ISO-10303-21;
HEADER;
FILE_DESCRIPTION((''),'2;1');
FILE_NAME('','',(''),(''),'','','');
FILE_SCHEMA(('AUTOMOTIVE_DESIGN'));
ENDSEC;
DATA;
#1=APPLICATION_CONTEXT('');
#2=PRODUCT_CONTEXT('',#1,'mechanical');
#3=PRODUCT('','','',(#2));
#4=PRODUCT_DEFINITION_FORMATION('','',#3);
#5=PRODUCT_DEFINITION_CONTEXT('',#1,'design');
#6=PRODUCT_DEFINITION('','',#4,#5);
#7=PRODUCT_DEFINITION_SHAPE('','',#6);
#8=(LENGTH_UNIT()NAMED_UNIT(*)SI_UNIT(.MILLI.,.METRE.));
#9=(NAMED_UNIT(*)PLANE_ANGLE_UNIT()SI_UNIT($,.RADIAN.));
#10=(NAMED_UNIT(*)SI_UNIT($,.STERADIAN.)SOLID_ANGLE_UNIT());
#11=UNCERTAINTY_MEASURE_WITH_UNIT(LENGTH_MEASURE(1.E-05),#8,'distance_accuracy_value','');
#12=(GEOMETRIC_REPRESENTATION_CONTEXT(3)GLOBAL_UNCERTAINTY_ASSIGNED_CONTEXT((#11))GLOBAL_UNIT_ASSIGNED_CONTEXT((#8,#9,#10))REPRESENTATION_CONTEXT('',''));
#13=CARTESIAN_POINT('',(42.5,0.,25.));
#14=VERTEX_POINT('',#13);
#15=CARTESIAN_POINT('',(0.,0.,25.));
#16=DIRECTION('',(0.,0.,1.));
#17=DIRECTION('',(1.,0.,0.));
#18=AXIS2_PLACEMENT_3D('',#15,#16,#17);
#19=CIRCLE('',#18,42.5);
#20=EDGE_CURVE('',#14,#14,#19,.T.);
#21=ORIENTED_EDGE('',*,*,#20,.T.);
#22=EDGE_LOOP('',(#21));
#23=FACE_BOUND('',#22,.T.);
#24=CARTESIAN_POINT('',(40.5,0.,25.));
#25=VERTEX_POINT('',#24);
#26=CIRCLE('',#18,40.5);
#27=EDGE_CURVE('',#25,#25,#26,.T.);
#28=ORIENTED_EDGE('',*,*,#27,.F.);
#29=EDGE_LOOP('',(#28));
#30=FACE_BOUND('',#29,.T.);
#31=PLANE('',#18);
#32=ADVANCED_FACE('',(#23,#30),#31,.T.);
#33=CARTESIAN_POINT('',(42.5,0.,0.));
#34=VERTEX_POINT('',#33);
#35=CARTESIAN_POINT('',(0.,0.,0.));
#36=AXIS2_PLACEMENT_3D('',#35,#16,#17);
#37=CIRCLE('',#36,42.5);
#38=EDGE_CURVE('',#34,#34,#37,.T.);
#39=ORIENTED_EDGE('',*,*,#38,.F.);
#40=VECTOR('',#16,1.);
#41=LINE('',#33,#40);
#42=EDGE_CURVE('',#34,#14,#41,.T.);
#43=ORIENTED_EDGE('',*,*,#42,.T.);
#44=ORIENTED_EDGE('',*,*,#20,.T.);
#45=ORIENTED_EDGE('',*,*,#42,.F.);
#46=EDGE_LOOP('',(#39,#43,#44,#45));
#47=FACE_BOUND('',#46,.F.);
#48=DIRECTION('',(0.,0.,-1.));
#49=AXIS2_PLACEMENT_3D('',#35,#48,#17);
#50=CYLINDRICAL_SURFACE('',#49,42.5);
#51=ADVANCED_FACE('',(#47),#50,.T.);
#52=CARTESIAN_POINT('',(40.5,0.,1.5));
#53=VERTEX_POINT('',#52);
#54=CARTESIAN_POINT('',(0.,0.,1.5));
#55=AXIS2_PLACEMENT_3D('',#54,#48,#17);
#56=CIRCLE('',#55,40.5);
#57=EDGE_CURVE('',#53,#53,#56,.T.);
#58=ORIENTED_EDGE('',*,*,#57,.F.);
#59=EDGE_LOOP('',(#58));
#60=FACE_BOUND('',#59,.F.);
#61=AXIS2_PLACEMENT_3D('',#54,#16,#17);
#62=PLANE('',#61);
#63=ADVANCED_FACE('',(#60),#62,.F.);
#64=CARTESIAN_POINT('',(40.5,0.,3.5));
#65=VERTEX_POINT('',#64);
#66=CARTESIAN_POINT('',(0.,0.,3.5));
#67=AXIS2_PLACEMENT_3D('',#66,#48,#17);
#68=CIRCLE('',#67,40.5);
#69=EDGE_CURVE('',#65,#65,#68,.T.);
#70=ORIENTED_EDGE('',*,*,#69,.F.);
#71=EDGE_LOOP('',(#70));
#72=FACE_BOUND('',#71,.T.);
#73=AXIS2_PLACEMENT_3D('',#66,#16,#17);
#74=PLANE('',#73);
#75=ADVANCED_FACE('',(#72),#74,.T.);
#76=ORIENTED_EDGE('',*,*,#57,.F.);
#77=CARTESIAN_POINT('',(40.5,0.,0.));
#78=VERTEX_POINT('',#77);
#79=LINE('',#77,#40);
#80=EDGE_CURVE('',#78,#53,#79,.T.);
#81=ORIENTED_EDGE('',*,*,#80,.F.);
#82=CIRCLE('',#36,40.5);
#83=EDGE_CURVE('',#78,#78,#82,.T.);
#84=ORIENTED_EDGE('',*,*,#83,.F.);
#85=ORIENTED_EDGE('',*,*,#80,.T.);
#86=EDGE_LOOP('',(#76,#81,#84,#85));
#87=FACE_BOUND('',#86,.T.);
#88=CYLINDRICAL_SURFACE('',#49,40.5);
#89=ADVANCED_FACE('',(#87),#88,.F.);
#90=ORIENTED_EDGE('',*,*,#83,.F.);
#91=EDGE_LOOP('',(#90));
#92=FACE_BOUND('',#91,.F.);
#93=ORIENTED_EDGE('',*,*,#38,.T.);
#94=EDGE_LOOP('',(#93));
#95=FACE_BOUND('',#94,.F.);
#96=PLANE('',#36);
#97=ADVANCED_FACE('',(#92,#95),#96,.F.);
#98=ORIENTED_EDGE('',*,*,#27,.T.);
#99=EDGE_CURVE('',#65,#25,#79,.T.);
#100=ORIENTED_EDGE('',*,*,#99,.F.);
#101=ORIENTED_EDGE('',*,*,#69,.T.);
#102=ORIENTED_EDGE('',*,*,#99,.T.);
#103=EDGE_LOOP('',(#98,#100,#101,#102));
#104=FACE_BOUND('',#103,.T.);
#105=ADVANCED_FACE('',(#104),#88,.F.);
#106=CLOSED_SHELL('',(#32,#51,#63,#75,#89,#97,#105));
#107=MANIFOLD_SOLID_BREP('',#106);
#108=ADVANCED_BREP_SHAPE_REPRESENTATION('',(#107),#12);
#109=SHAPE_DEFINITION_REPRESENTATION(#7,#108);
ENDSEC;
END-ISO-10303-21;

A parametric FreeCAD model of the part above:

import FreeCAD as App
import Part
import Sketcher

V = App.Vector
Q = App.Units.Quantity

doc = App.newDocument("Part")
body = doc.addObject("PartDesign::Body", "Body")

# Sketch on XY plane
sketch1 = body.newObject("Sketcher::SketchObject", "Sketch")
sketch1.AttachmentSupport = (doc.getObject("XY_Plane"), [""])
sketch1.MapMode = "FlatFace"
sketch1.addGeometry(Part.Circle(V(0, 0, 0), V(0, 0, 1), 42), False)
sketch1.addConstraint([
    Sketcher.Constraint("Coincident", 0, 3, -1, 1),
    Sketcher.Constraint("Diameter", 0, Q("84.260462 mm")),
])
pad1 = body.newObject("PartDesign::Pad", "Pad")
pad1.Profile = sketch1
pad1.Length = 2
body2 = doc.addObject("PartDesign::Body", "Body001")
doc.recompute()

body.Placement = App.Placement(V(0, 0, 1.5), App.Rotation(V(0, 0, 1), 0))
boolean = body2.newObject("PartDesign::Boolean", "Boolean")
boolean.Type = "Fuse"
boolean.addObjects([body])

# Sketch on XY plane
sketch2 = body2.newObject("Sketcher::SketchObject", "Sketch001")
sketch2.AttachmentSupport = (doc.getObject("XY_Plane001"), [""])
sketch2.MapMode = "FlatFace"
sketch2.addGeometry([
    Part.Circle(V(0, 0, 0), V(0, 0, 1), 42),
    Part.Circle(V(0, 0, 0), V(0, 0, 1), 40),
], False)
sketch2.addConstraint([
    Sketcher.Constraint("Coincident", 0, 3, -1, 1),
    Sketcher.Constraint("Coincident", 1, 3, -1, 1),
    Sketcher.Constraint("Diameter", 0, Q("85 mm")),
    Sketcher.Constraint("Diameter", 1, Q("81 mm")),
])
pad2 = body2.newObject("PartDesign::Pad", "Pad001")
pad2.Profile = sketch2
pad2.Length = 25

doc.recompute()
